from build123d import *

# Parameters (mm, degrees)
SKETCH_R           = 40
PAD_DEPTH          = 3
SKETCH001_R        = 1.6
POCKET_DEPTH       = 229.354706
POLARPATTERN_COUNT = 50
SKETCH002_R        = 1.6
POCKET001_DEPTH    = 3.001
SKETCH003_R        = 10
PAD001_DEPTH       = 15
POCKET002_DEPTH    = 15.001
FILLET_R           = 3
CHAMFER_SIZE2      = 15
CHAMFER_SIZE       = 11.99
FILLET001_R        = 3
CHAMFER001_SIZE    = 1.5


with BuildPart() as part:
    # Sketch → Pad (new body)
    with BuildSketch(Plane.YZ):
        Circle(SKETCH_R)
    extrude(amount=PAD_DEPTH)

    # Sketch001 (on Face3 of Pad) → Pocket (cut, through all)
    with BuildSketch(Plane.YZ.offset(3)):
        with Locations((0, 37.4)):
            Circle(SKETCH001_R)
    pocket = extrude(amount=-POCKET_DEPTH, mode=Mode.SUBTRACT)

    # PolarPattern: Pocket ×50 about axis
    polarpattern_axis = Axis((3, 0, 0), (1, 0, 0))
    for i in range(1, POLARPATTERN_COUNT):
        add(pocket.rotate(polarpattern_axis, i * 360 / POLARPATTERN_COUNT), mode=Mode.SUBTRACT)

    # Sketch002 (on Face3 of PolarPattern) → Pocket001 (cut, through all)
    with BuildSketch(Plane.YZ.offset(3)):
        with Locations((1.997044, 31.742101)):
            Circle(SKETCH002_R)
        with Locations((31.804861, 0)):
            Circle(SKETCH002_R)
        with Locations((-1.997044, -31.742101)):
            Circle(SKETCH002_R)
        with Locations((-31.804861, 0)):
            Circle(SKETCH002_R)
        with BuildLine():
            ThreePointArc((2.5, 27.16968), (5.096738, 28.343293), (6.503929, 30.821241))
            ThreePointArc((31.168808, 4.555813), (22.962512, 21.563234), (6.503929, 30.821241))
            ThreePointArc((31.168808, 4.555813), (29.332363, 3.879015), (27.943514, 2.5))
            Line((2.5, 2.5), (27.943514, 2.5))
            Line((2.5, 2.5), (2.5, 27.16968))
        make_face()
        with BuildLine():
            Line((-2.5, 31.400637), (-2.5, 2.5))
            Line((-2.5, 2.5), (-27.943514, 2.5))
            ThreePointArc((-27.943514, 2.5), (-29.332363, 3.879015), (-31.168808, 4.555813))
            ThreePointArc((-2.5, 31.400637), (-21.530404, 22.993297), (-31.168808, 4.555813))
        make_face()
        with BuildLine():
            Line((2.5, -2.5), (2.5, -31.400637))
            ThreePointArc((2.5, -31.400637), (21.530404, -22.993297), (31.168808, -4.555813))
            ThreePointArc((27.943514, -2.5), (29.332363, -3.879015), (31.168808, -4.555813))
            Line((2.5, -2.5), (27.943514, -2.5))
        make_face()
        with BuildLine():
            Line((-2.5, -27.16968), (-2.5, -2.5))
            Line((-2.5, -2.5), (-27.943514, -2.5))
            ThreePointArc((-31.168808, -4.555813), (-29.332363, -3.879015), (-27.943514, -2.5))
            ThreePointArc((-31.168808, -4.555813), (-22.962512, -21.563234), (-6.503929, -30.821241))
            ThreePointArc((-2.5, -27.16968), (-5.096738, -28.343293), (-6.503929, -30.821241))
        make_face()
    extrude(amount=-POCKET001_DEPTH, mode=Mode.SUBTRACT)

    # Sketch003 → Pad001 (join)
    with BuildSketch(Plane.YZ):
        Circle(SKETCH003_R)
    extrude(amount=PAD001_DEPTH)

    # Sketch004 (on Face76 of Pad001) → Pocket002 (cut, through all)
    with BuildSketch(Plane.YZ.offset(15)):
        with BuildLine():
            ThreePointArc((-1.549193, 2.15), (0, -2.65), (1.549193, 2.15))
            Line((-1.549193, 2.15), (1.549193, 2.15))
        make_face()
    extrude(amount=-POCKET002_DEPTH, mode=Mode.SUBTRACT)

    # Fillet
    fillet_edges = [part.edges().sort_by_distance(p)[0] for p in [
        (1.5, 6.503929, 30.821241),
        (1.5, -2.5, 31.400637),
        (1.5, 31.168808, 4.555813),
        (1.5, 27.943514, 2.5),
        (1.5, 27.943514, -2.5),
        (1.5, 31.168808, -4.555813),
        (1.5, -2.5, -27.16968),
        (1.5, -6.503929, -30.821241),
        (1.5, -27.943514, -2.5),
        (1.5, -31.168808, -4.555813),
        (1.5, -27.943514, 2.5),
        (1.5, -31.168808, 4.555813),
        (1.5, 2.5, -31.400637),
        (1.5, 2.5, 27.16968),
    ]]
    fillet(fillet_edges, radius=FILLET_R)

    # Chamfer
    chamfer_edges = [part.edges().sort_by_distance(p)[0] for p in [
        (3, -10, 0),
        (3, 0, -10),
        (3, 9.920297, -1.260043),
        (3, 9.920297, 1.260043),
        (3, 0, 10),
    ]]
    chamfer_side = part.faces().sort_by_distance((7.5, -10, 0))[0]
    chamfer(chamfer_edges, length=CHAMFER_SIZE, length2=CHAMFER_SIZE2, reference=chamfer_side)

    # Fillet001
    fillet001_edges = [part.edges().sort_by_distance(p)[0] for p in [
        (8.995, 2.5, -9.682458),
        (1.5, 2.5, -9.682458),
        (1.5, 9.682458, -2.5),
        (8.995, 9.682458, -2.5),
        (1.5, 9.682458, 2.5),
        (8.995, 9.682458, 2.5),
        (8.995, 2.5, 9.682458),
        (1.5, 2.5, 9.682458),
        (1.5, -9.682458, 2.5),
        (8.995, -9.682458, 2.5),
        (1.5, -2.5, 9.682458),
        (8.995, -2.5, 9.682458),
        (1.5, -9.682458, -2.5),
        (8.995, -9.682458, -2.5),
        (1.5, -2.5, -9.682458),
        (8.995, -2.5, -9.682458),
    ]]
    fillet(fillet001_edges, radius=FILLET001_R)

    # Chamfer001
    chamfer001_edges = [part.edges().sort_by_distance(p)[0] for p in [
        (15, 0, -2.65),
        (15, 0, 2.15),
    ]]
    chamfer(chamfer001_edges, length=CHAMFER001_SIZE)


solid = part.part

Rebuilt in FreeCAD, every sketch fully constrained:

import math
import FreeCAD as App
import Part
import Sketcher
from FreeCAD import Vector
Q = App.Units.Quantity


def edges_at(feature, points):
    """Names of the edges that pass closest to the given points."""
    edges = feature.Shape.Edges
    near = lambda p: min(range(len(edges)), key=lambda i: edges[i].distToShape(Part.Vertex(*p))[0])
    return sorted({f"Edge{near(p) + 1}" for p in points})

doc = App.newDocument("Part")
body = doc.addObject("PartDesign::Body", "Body")

# Sketch on YZ plane
sketch1 = body.newObject("Sketcher::SketchObject", "Sketch")
sketch1.AttachmentSupport = (doc.getObject("YZ_Plane"), [""])
sketch1.MapMode = "FlatFace"
sketch1.addGeometry(Part.Circle(Vector(0, 0, 0), Vector(0, 0, 1), 40), False)
sketch1.addConstraint(Sketcher.Constraint("Coincident", 0, 3, -1, 1))
sketch1.addConstraint(Sketcher.Constraint("Diameter", 0, Q("80 mm")))
pad1 = body.newObject("PartDesign::Pad", "Pad")
pad1.Profile = sketch1
pad1.Length = 3

# Sketch on YZ plane
sketch2 = body.newObject("Sketcher::SketchObject", "Sketch001")
sketch2.AttachmentSupport = (doc.getObject("YZ_Plane"), [""])
sketch2.MapMode = "FlatFace"
sketch2.AttachmentOffset = App.Placement(Vector(0, 0, 3), App.Rotation())
sketch2.addGeometry(Part.Circle(Vector(0, 37.4, 0), Vector(0, 0, 1), 1.6), False)
sketch2.addConstraint(Sketcher.Constraint("PointOnObject", 0, 3, -2))
sketch2.addConstraint(Sketcher.Constraint("Diameter", 0, Q("3.2 mm")))
sketch2.addConstraint(Sketcher.Constraint("DistanceY", -1, 1, 0, 3, Q("37.4 mm")))
pocket1 = body.newObject("PartDesign::Pocket", "Pocket")
pocket1.Profile = sketch2
pocket1.Type = "ThroughAll"
doc.recompute()

polarpattern = body.newObject("PartDesign::PolarPattern", "PolarPattern")
polarpattern.Originals = [pocket1]
polarpattern.Axis = (doc.getObject("X_Axis"), [""])
polarpattern.Angle = 360
polarpattern.Occurrences = 50
body.Tip = polarpattern

# Sketch on YZ plane
sketch3 = body.newObject("Sketcher::SketchObject", "Sketch002")
sketch3.AttachmentSupport = (doc.getObject("YZ_Plane"), [""])
sketch3.MapMode = "FlatFace"
sketch3.AttachmentOffset = App.Placement(Vector(0, 0, 3), App.Rotation())
sketch3.addGeometry(Part.Circle(Vector(2, 31.7, 0), Vector(0, 0, 1), 1.6), False)
sketch3.addGeometry(Part.Circle(Vector(31.8, 0, 0), Vector(0, 0, 1), 1.6), False)
sketch3.addGeometry(Part.Circle(Vector(-2, -31.7, 0), Vector(0, 0, 1), 1.6), False)
sketch3.addGeometry(Part.Circle(Vector(-31.8, 0, 0), Vector(0, 0, 1), 1.6), False)
sketch3.addGeometry(Part.ArcOfCircle(Part.Circle(Vector(2, 31.7, 0), Vector(0, 0, 1), 4.6), math.radians(-84), math.radians(-12)), False)
sketch3.addGeometry(Part.LineSegment(Vector(2.5, 27.2, 0), Vector(2.5, 2.5, 0)), False)
sketch3.addGeometry(Part.LineSegment(Vector(2.5, 2.5, 0), Vector(27.9, 2.5, 0)), False)
sketch3.addGeometry(Part.ArcOfCircle(Part.Circle(Vector(31.8, 0, 0), Vector(0, 0, 1), 4.6), math.radians(98), math.radians(147)), False)
sketch3.addGeometry(Part.ArcOfCircle(Part.Circle(Vector(0, 0, 0), Vector(0, 0, 1), 31.5), math.radians(8), math.radians(78)), False)
sketch3.addGeometry(Part.LineSegment(Vector(-2.5, 2.5, 0), Vector(-2.5, 31.4, 0)), False)
sketch3.addGeometry(Part.ArcOfCircle(Part.Circle(Vector(0, 0, 0), Vector(0, 0, 1), 31.5), math.radians(95), math.radians(172)), False)
sketch3.addGeometry(Part.ArcOfCircle(Part.Circle(Vector(-31.8, 0, 0), Vector(0, 0, 1), 4.6), math.radians(33), math.radians(82)), False)
sketch3.addGeometry(Part.LineSegment(Vector(-27.9, 2.5, 0), Vector(-2.5, 2.5, 0)), False)
sketch3.addGeometry(Part.LineSegment(Vector(2.5, -2.5, 0), Vector(2.5, -31.4, 0)), False)
sketch3.addGeometry(Part.ArcOfCircle(Part.Circle(Vector(0, 0, 0), Vector(0, 0, 1), 31.5), math.radians(-85), math.radians(-8)), False)
sketch3.addGeometry(Part.ArcOfCircle(Part.Circle(Vector(31.8, 0, 0), Vector(0, 0, 1), 4.6), math.radians(-147), math.radians(-98)), False)
sketch3.addGeometry(Part.LineSegment(Vector(27.9, -2.5, 0), Vector(2.5, -2.5, 0)), False)
sketch3.addGeometry(Part.LineSegment(Vector(-2.5, -27.2, 0), Vector(-2.5, -2.5, 0)), False)
sketch3.addGeometry(Part.LineSegment(Vector(-2.5, -2.5, 0), Vector(-27.9, -2.5, 0)), False)
sketch3.addGeometry(Part.ArcOfCircle(Part.Circle(Vector(-31.8, 0, 0), Vector(0, 0, 1), 4.6), math.radians(-82), math.radians(-33)), False)
sketch3.addGeometry(Part.ArcOfCircle(Part.Circle(Vector(0, 0, 0), Vector(0, 0, 1), 31.5), math.radians(-172), math.radians(-102)), False)
sketch3.addGeometry(Part.ArcOfCircle(Part.Circle(Vector(-2, -31.7, 0), Vector(0, 0, 1), 4.6), math.radians(96), math.radians(168)), False)
sketch3.addConstraint(Sketcher.Constraint("Coincident", 4, 1, 5, 1))
sketch3.addConstraint(Sketcher.Constraint("Coincident", 5, 2, 6, 1))
sketch3.addConstraint(Sketcher.Constraint("Coincident", 6, 2, 7, 2))
sketch3.addConstraint(Sketcher.Constraint("Coincident", 7, 1, 8, 1))
sketch3.addConstraint(Sketcher.Constraint("Coincident", 8, 2, 4, 2))
sketch3.addConstraint(Sketcher.Constraint("Coincident", 9, 2, 10, 1))
sketch3.addConstraint(Sketcher.Constraint("Coincident", 10, 2, 11, 2))
sketch3.addConstraint(Sketcher.Constraint("Coincident", 11, 1, 12, 1))
sketch3.addConstraint(Sketcher.Constraint("Coincident", 12, 2, 9, 1))
sketch3.addConstraint(Sketcher.Constraint("Coincident", 13, 2, 14, 1))
sketch3.addConstraint(Sketcher.Constraint("Coincident", 14, 2, 15, 2))
sketch3.addConstraint(Sketcher.Constraint("Coincident", 15, 1, 16, 1))
sketch3.addConstraint(Sketcher.Constraint("Coincident", 16, 2, 13, 1))
sketch3.addConstraint(Sketcher.Constraint("Coincident", 17, 2, 18, 1))
sketch3.addConstraint(Sketcher.Constraint("Coincident", 18, 2, 19, 2))
sketch3.addConstraint(Sketcher.Constraint("Coincident", 19, 1, 20, 1))
sketch3.addConstraint(Sketcher.Constraint("Coincident", 20, 2, 21, 2))
sketch3.addConstraint(Sketcher.Constraint("Coincident", 21, 1, 17, 1))
sketch3.addConstraint(Sketcher.Constraint("Vertical", 5))
sketch3.addConstraint(Sketcher.Constraint("Horizontal", 6))
sketch3.addConstraint(Sketcher.Constraint("Vertical", 9))
sketch3.addConstraint(Sketcher.Constraint("Horizontal", 12))
sketch3.addConstraint(Sketcher.Constraint("Vertical", 13))
sketch3.addConstraint(Sketcher.Constraint("Horizontal", 16))
sketch3.addConstraint(Sketcher.Constraint("Vertical", 17))
sketch3.addConstraint(Sketcher.Constraint("Horizontal", 18))
sketch3.addConstraint(Sketcher.Constraint("Coincident", 8, 3, -1, 1))
sketch3.addConstraint(Sketcher.Constraint("Coincident", 10, 3, -1, 1))
sketch3.addConstraint(Sketcher.Constraint("Coincident", 14, 3, -1, 1))
sketch3.addConstraint(Sketcher.Constraint("Coincident", 20, 3, -1, 1))
sketch3.addConstraint(Sketcher.Constraint("Coincident", 4, 3, 0, 3))
sketch3.addConstraint(Sketcher.Constraint("Coincident", 7, 3, 1, 3))
sketch3.addConstraint(Sketcher.Constraint("Coincident", 11, 3, 3, 3))
sketch3.addConstraint(Sketcher.Constraint("Coincident", 15, 3, 1, 3))
sketch3.addConstraint(Sketcher.Constraint("Coincident", 19, 3, 3, 3))
sketch3.addConstraint(Sketcher.Constraint("Coincident", 21, 3, 2, 3))
sketch3.addConstraint(Sketcher.Constraint("Equal", 0, 1))
sketch3.addConstraint(Sketcher.Constraint("Equal", 1, 2))
sketch3.addConstraint(Sketcher.Constraint("Equal", 2, 3))
sketch3.addConstraint(Sketcher.Constraint("Equal", 8, 10))
sketch3.addConstraint(Sketcher.Constraint("Equal", 7, 11))
sketch3.addConstraint(Sketcher.Constraint("Equal", 10, 14))
sketch3.addConstraint(Sketcher.Constraint("Equal", 11, 15))
sketch3.addConstraint(Sketcher.Constraint("Equal", 15, 19))
sketch3.addConstraint(Sketcher.Constraint("Equal", 14, 20))
sketch3.addConstraint(Sketcher.Constraint("Equal", 4, 21))
sketch3.addConstraint(Sketcher.Constraint("Symmetric", 0, 3, 2, 3, -1, 1))
sketch3.addConstraint(Sketcher.Constraint("Symmetric", 1, 3, 3, 3, -1, 1))
sketch3.addConstraint(Sketcher.Constraint("Symmetric", 12, 2, 16, 2, -1, 1))
sketch3.addConstraint(Sketcher.Constraint("Symmetric", 5, 2, 17, 2, -1, 1))
sketch3.addConstraint(Sketcher.Constraint("Symmetric", 6, 2, 11, 1, -2))
sketch3.addConstraint(Sketcher.Constraint("Vertical", 5, 2, 13, 2))
sketch3.addConstraint(Sketcher.Constraint("Diameter", 0, Q("3.2 mm")))
sketch3.addConstraint(Sketcher.Constraint("Radius", 4, Q("4.599999 mm")))
sketch3.addConstraint(Sketcher.Constraint("Radius", 8, Q("31.499999 mm")))
sketch3.addConstraint(Sketcher.Constraint("DistanceX", 9, 2, 4, 1, Q("5 mm")))
sketch3.addConstraint(Sketcher.Constraint("DistanceY", 15, 1, 6, 2, Q("5 mm")))
sketch3.addConstraint(Sketcher.Constraint("Radius", 7, Q("4.599994 mm")))
sketch3.addConstraint(Sketcher.Constraint("DistanceY", 5, 2, 5, 1, Q("24.66968 mm")))
sketch3.addConstraint(Sketcher.Constraint("DistanceY", -1, 1, 0, 3, Q("31.742101 mm")))
sketch3.addConstraint(Sketcher.Constraint("DistanceX", 2, 3, 7, 3, Q("33.801901 mm")))
pocket2 = body.newObject("PartDesign::Pocket", "Pocket001")
pocket2.Profile = sketch3
pocket2.Type = "ThroughAll"

# Sketch on YZ plane
sketch4 = body.newObject("Sketcher::SketchObject", "Sketch003")
sketch4.AttachmentSupport = (doc.getObject("YZ_Plane"), [""])
sketch4.MapMode = "FlatFace"
sketch4.addGeometry(Part.Circle(Vector(0, 0, 0), Vector(0, 0, 1), 10), False)
sketch4.addConstraint(Sketcher.Constraint("Coincident", 0, 3, -1, 1))
sketch4.addConstraint(Sketcher.Constraint("Diameter", 0, Q("20 mm")))
pad2 = body.newObject("PartDesign::Pad", "Pad001")
pad2.Profile = sketch4
pad2.Length = 15

# Sketch on YZ plane
sketch5 = body.newObject("Sketcher::SketchObject", "Sketch004")
sketch5.AttachmentSupport = (doc.getObject("YZ_Plane"), [""])
sketch5.MapMode = "FlatFace"
sketch5.AttachmentOffset = App.Placement(Vector(0, 0, 15), App.Rotation())
sketch5.addGeometry(Part.ArcOfCircle(Part.Circle(Vector(0, 0, 0), Vector(0, 0, 1), 2.6), math.radians(126), math.radians(414)), False)
sketch5.addGeometry(Part.LineSegment(Vector(1.5, 2.1, 0), Vector(-1.5, 2.1, 0)), False)
sketch5.addConstraint(Sketcher.Constraint("Coincident", 0, 1, 1, 2))
sketch5.addConstraint(Sketcher.Constraint("Coincident", 1, 1, 0, 2))
sketch5.addConstraint(Sketcher.Constraint("Horizontal", 1))
sketch5.addConstraint(Sketcher.Constraint("Coincident", 0, 3, -1, 1))
sketch5.addConstraint(Sketcher.Constraint("Radius", 0, Q("2.65 mm")))
sketch5.addConstraint(Sketcher.Constraint("DistanceY", -1, 1, 0, 1, Q("2.15 mm")))
pocket3 = body.newObject("PartDesign::Pocket", "Pocket002")
pocket3.Profile = sketch5
pocket3.Type = "ThroughAll"
doc.recompute()

fillet = body.newObject("PartDesign::Fillet", "Fillet")
fillet.Base = (pocket3, edges_at(pocket3, [
    (1.5, 6.504, 30.821),
    (1.5, -2.5, 31.401),
    (1.5, 31.169, 4.556),
    (1.5, 27.944, 2.5),
    (1.5, 27.944, -2.5),
    (1.5, 31.169, -4.556),
    (1.5, -2.5, -27.17),
    (1.5, -6.504, -30.821),
    (1.5, -27.944, -2.5),
    (1.5, -31.169, -4.556),
    (1.5, -27.944, 2.5),
    (1.5, -31.169, 4.556),
    (1.5, 2.5, -31.401),
    (1.5, 2.5, 27.17),
]))
fillet.Radius = 3
doc.recompute()

chamfer = body.newObject("PartDesign::Chamfer", "Chamfer")
chamfer.Base = (fillet, edges_at(fillet, [
    (3, -10, 0),
    (3, 0, -10),
    (3, 9.92, -1.26),
    (3, 9.92, 1.26),
    (3, 0, 10),
]))
chamfer.ChamferType = "Two distances"
chamfer.Size = 11.99
chamfer.Size2 = 15
doc.recompute()

fillet2 = body.newObject("PartDesign::Fillet", "Fillet001")
fillet2.Base = (chamfer, edges_at(chamfer, [
    (7.495, 2.5, -9.682),
    (7.495, 2.5, -9.682),
    (7.495, 9.682, -2.5),
    (7.495, 9.682, -2.5),
    (7.495, 9.682, 2.5),
    (7.495, 9.682, 2.5),
    (7.495, 2.5, 9.682),
    (7.495, 2.5, 9.682),
    (7.495, -9.682, 2.5),
    (7.495, -9.682, 2.5),
    (7.495, -2.5, 9.682),
    (7.495, -2.5, 9.682),
    (7.495, -9.682, -2.5),
    (7.495, -9.682, -2.5),
    (7.495, -2.5, -9.682),
    (7.495, -2.5, -9.682),
]))
fillet2.Radius = 3
doc.recompute()

chamfer2 = body.newObject("PartDesign::Chamfer", "Chamfer001")
chamfer2.Base = (fillet2, edges_at(fillet2, [(15, 0, -2.65), (15, 0, 2.15)]))
chamfer2.Size = 1.5

doc.recompute()
